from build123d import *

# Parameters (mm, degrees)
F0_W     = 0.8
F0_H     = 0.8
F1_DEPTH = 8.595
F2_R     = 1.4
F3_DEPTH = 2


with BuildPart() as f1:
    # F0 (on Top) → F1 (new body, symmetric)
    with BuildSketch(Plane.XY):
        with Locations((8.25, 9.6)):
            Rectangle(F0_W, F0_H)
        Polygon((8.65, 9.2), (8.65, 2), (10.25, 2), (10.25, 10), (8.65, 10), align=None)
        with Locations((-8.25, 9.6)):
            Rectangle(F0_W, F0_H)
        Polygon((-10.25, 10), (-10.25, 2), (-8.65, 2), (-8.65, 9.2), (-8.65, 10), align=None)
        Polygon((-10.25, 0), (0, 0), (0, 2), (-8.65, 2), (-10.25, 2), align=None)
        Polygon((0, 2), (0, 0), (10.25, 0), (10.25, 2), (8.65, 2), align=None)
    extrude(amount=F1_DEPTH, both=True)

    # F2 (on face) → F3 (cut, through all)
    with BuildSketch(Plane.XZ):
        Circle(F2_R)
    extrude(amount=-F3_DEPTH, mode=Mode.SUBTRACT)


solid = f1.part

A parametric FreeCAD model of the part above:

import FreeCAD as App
import Part
import Sketcher


def add_polygon(sketch, points):
    """Adds a closed chain of lines whose ends are joined by coincident constraints."""
    first, n = sketch.GeometryCount, len(points)
    for a, b in zip(points, points[1:] + points[:1]):
        sketch.addGeometry(Part.LineSegment(App.Vector(*a, 0), App.Vector(*b, 0)), False)
    for i in range(n):
        sketch.addConstraint(Sketcher.Constraint("Coincident", first + i, 2, first + (i + 1) % n, 1))

doc = App.newDocument("Part")
body = doc.addObject("PartDesign::Body", "Body")

sketch1 = body.newObject("Sketcher::SketchObject", "Sketch")
sketch1.AttachmentSupport = (doc.getObject("XY_Plane"), [""])
sketch1.MapMode = "FlatFace"
add_polygon(sketch1, [(7.8, 10), (7.8, 9.2), (8.7, 9.2), (8.7, 2), (-8.7, 2), (-8.7, 9.2), (-7.8, 9.2), (-7.8, 10), (-10.2, 10), (-10.2, 0), (10.2, 0), (10.2, 10)])
sketch1.addConstraint(Sketcher.Constraint("Vertical", 0))
sketch1.addConstraint(Sketcher.Constraint("Horizontal", 1))
sketch1.addConstraint(Sketcher.Constraint("Vertical", 2))
sketch1.addConstraint(Sketcher.Constraint("Horizontal", 3))
sketch1.addConstraint(Sketcher.Constraint("Vertical", 4))
sketch1.addConstraint(Sketcher.Constraint("Horizontal", 5))
sketch1.addConstraint(Sketcher.Constraint("Vertical", 6))
sketch1.addConstraint(Sketcher.Constraint("Horizontal", 7))
sketch1.addConstraint(Sketcher.Constraint("Vertical", 8))
sketch1.addConstraint(Sketcher.Constraint("Horizontal", 9))
sketch1.addConstraint(Sketcher.Constraint("Vertical", 10))
sketch1.addConstraint(Sketcher.Constraint("Horizontal", 11))
sketch1.addConstraint(Sketcher.Constraint("Symmetric", 8, 2, 9, 2, -1, 1))
sketch1.addConstraint(Sketcher.Constraint("Symmetric", 1, 2, 4, 2, -2))
sketch1.addConstraint(Sketcher.Constraint("Symmetric", 6, 2, 11, 2, -2))
sketch1.addConstraint(Sketcher.Constraint("Equal", 5, 0))
sketch1.addConstraint(Sketcher.Constraint("DistanceY", 8, 2, 8, 1, 10.0))
sketch1.addConstraint(Sketcher.Constraint("DistanceX", 1, 1, 1, 2, 0.8))
sketch1.addConstraint(Sketcher.Constraint("DistanceX", 3, 2, 3, 1, 17.3))
sketch1.addConstraint(Sketcher.Constraint("DistanceX", 7, 2, 7, 1, 2.4))
sketch1.addConstraint(Sketcher.Constraint("DistanceY", 2, 2, 2, 1, 7.2))
pad1 = body.newObject("PartDesign::Pad", "Pad")
pad1.Profile = sketch1
pad1.Length = 17.19
pad1.Midplane = True

sketch2 = body.newObject("Sketcher::SketchObject", "Sketch001")
sketch2.AttachmentSupport = (doc.getObject("XZ_Plane"), [""])
sketch2.MapMode = "FlatFace"
sketch2.addGeometry(Part.Circle(App.Vector(0, 0, 0), App.Vector(0, 0, 1), 1.4), False)
sketch2.addConstraint(Sketcher.Constraint("Coincident", 0, 3, -1, 1))
sketch2.addConstraint(Sketcher.Constraint("Diameter", 0, 2.8))
pocket1 = body.newObject("PartDesign::Pocket", "Pocket")
pocket1.Profile = sketch2
pocket1.Type = "ThroughAll"

doc.recompute()
